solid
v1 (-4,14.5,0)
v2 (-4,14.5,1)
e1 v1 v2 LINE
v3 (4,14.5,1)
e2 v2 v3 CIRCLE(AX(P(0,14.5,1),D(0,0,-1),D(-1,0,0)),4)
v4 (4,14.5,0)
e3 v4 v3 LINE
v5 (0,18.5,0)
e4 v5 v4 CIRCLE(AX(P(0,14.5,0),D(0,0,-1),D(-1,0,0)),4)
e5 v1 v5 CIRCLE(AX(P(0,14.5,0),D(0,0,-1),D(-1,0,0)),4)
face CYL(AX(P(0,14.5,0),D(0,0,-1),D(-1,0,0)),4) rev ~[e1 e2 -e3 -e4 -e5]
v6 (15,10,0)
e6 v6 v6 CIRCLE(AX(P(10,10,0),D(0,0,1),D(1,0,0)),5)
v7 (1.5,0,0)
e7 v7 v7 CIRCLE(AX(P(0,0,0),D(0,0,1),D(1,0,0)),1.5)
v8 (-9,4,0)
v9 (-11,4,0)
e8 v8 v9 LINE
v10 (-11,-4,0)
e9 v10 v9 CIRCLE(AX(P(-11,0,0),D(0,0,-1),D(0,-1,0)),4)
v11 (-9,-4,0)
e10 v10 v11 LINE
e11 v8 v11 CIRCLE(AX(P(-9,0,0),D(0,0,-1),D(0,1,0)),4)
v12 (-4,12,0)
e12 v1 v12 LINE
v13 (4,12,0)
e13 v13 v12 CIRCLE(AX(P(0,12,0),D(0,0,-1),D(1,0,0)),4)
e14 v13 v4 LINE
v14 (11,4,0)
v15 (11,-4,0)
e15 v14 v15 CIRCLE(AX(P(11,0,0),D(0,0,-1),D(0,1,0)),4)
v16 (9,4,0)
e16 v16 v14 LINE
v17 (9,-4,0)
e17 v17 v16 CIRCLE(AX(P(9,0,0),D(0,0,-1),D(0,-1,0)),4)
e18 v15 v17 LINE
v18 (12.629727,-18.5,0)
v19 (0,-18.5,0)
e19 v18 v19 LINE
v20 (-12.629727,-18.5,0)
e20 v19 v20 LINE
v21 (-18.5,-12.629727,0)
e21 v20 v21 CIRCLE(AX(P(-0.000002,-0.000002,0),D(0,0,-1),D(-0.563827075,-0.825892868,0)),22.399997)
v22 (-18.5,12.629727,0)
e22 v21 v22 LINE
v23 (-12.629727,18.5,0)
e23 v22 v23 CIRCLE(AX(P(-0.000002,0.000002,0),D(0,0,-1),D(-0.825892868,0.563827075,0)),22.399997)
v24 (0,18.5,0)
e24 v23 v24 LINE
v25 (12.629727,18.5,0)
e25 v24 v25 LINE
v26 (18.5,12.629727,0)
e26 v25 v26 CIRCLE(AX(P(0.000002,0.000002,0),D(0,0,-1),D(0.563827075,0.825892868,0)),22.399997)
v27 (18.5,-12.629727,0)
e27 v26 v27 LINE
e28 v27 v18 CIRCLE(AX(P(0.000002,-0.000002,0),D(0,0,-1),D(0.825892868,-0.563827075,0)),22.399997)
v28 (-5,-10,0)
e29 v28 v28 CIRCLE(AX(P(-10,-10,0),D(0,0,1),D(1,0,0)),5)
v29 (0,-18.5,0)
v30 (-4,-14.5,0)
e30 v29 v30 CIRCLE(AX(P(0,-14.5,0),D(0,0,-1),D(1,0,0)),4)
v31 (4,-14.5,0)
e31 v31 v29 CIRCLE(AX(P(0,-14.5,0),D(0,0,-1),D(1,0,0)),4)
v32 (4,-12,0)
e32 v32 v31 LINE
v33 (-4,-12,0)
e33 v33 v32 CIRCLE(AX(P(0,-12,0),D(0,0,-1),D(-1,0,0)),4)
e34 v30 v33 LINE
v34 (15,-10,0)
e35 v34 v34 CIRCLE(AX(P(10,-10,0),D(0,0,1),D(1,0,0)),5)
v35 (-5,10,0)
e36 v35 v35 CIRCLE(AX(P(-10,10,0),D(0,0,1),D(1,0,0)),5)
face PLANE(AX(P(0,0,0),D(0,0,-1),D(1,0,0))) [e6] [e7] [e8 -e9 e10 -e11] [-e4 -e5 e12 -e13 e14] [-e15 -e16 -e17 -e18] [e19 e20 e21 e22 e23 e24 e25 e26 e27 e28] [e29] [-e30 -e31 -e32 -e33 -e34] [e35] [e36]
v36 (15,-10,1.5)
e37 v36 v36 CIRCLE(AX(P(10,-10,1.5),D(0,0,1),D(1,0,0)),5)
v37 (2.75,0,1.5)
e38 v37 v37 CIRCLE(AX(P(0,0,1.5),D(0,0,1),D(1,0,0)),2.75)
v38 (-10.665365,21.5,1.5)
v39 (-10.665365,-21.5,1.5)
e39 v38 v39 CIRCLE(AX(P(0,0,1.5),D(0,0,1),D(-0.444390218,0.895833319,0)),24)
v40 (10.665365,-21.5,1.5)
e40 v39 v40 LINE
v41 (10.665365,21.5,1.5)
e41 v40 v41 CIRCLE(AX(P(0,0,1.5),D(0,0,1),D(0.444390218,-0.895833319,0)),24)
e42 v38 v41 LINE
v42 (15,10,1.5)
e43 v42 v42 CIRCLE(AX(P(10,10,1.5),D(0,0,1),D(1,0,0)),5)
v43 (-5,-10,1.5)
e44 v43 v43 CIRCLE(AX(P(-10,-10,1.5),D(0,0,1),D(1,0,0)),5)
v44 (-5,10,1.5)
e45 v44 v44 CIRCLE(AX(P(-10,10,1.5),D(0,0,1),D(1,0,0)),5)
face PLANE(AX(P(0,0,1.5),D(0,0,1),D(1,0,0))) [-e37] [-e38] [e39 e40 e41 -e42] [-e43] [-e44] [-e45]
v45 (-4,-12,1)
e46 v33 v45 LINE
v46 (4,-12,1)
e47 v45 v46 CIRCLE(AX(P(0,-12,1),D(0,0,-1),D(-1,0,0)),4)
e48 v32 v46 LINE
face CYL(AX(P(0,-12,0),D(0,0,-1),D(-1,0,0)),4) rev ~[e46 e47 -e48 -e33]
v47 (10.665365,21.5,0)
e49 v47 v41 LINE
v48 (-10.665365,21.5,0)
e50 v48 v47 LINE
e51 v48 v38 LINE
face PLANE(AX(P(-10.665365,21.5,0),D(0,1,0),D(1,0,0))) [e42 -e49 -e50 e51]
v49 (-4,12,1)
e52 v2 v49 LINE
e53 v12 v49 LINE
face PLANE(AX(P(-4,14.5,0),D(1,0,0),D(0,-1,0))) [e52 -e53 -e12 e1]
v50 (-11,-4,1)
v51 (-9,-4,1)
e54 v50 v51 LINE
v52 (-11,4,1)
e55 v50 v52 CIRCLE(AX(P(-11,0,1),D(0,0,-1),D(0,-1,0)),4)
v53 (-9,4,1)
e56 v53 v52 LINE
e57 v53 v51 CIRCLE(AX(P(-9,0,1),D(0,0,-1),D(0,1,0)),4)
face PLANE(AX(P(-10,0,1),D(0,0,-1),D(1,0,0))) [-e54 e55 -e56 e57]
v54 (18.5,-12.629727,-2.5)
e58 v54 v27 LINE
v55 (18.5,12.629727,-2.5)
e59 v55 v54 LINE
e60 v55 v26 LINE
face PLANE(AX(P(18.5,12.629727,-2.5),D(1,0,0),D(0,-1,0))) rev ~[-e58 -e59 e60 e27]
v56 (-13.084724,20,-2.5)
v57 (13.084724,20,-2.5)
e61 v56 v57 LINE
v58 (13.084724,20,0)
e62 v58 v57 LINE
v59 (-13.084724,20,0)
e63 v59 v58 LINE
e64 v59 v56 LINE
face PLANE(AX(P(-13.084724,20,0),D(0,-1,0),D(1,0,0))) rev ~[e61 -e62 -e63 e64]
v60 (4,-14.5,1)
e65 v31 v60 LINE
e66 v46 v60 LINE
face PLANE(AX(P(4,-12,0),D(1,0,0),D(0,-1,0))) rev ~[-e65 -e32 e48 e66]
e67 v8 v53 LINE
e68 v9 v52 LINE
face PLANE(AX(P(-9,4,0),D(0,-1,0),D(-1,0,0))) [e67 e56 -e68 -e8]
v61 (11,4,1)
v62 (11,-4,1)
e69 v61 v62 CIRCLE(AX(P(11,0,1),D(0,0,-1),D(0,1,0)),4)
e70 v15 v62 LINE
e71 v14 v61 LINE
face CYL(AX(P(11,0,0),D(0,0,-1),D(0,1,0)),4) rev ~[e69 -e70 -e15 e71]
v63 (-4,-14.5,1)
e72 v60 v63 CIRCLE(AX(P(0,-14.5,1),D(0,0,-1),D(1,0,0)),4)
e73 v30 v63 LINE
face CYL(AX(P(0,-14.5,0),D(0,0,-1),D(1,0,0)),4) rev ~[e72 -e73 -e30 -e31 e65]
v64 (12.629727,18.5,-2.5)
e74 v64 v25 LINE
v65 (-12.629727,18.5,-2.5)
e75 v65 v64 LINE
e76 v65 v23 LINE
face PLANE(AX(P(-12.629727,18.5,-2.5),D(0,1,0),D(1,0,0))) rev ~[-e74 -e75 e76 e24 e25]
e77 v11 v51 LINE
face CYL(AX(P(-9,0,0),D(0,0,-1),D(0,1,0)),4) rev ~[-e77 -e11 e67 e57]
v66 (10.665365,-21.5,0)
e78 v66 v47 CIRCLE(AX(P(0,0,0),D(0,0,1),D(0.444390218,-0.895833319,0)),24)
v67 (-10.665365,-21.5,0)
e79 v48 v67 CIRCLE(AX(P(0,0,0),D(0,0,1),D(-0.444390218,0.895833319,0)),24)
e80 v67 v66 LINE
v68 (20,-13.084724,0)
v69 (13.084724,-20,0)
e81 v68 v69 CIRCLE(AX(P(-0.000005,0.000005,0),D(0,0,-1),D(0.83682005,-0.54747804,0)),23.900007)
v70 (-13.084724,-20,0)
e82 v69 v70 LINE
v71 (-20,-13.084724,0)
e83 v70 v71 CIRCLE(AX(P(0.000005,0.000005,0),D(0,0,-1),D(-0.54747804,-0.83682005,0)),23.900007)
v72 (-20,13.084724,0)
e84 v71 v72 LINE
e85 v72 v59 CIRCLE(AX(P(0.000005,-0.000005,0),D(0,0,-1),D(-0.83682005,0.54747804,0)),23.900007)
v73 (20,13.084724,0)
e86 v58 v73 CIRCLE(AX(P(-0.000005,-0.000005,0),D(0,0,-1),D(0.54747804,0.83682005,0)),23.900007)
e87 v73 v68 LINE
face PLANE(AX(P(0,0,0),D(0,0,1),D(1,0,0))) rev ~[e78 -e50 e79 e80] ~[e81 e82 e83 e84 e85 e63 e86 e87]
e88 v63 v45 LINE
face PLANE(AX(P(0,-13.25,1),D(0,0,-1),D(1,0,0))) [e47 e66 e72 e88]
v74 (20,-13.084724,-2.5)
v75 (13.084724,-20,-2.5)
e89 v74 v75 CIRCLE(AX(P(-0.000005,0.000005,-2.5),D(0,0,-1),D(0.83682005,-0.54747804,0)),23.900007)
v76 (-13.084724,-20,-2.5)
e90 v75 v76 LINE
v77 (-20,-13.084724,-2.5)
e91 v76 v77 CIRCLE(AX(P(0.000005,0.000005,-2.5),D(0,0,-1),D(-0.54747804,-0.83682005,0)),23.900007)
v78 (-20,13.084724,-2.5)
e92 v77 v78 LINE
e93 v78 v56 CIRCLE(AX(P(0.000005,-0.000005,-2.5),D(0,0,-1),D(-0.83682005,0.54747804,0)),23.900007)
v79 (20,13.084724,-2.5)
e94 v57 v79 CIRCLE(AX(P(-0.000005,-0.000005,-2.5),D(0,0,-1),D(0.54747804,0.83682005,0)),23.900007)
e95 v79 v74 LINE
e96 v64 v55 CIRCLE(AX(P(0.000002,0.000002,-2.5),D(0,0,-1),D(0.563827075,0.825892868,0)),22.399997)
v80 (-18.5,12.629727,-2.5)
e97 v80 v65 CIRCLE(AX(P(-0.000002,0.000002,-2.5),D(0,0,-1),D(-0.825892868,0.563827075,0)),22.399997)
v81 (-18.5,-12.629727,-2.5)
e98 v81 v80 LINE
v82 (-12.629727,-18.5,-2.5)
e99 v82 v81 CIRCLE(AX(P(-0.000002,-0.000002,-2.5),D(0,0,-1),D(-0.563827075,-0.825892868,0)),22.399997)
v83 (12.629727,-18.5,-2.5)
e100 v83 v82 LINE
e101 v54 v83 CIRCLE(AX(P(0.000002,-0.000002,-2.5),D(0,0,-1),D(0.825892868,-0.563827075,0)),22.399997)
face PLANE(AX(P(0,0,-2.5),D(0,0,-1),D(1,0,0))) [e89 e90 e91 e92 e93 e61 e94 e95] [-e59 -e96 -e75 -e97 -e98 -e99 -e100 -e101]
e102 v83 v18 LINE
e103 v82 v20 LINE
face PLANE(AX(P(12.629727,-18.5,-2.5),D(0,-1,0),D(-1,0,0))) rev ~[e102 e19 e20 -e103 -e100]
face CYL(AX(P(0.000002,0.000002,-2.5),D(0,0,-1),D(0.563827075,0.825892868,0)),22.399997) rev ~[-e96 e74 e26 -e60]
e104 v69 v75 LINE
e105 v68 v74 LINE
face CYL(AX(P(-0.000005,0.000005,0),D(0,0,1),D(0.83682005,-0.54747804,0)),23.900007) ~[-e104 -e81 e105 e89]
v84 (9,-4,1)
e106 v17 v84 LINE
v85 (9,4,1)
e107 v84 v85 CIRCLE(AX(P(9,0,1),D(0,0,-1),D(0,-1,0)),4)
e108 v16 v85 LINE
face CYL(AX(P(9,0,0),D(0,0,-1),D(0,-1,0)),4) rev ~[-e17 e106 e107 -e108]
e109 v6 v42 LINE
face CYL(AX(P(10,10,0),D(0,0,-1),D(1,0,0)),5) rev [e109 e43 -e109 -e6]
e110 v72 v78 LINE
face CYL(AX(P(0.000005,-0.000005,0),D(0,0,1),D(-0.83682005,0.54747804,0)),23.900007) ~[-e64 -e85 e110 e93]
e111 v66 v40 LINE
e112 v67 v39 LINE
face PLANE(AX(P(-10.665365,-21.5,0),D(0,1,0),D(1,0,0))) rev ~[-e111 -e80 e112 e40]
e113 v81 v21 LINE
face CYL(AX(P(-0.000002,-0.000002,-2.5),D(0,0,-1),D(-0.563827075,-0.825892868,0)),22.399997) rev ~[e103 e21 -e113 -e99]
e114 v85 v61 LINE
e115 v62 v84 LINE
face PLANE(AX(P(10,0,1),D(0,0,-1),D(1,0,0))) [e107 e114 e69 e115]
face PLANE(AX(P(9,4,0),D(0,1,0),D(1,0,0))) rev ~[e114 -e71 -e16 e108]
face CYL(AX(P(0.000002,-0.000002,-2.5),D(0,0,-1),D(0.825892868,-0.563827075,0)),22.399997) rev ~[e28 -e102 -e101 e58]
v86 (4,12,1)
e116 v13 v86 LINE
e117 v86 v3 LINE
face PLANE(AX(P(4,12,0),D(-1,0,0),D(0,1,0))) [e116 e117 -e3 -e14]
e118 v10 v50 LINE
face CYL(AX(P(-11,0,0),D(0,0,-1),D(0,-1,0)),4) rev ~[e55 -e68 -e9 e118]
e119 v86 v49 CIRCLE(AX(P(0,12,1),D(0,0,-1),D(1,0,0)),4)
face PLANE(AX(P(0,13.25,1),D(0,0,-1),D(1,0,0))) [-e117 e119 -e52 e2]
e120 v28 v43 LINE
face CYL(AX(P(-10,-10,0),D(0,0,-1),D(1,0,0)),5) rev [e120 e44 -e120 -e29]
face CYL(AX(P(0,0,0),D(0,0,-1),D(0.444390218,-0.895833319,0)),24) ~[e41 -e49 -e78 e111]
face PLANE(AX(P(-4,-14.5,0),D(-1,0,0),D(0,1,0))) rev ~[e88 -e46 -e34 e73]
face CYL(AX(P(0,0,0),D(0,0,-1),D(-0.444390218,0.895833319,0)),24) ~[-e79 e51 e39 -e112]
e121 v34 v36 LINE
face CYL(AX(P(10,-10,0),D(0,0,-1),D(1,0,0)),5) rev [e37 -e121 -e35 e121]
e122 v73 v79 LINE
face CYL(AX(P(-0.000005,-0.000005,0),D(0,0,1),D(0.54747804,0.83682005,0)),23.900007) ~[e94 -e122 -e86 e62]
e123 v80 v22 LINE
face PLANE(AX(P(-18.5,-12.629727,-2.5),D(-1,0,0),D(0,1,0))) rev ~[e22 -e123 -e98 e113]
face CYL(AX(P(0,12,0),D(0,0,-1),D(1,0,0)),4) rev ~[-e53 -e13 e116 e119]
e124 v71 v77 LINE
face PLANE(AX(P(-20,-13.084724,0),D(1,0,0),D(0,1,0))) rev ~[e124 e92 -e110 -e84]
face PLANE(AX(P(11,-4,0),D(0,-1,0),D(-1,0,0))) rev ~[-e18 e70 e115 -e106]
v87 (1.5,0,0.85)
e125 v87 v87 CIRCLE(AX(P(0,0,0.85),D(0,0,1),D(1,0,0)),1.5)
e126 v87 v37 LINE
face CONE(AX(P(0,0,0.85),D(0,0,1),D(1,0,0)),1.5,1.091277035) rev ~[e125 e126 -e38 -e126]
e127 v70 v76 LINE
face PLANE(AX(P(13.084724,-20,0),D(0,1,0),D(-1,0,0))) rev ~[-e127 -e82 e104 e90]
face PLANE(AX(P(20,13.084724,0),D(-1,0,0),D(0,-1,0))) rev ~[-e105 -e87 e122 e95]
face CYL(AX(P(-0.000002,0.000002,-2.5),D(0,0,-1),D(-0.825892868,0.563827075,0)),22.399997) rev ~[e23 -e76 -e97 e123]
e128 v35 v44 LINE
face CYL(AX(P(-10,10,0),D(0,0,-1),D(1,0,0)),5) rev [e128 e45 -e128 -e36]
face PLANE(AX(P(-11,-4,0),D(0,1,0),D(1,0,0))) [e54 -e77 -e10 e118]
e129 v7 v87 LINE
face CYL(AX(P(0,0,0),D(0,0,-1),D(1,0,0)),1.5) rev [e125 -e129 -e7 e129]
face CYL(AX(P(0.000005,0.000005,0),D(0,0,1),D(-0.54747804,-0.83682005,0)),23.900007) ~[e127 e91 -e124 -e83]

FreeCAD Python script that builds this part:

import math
import FreeCAD as App
import Part
import Sketcher


def edges_at(feature, points):
    """Names of the edges that pass closest to the given points."""
    edges = feature.Shape.Edges
    near = lambda p: min(range(len(edges)), key=lambda i: edges[i].distToShape(Part.Vertex(*p))[0])
    return sorted({f"Edge{near(p) + 1}" for p in points})

doc = App.newDocument("Part")
body = doc.addObject("PartDesign::Body", "Body")

# Sketch on XY plane
sketch1 = doc.addObject("Sketcher::SketchObject", "Sketch")
body.addObject(sketch1)
sketch1.AttachmentSupport = (doc.XY_Plane, [""])
sketch1.MapMode = "FlatFace"
sketch1.addGeometry([
    Part.ArcOfCircle(Part.Circle(App.Vector(0, 0, 0), App.Vector(0, 0, 1), 24), math.radians(-64), math.radians(64)),  # 0
    Part.LineSegment(App.Vector(10.7, 21.5, 0), App.Vector(-10.7, 21.5, 0)),  # 1
    Part.ArcOfCircle(Part.Circle(App.Vector(0, 0, 0), App.Vector(0, 0, 1), 24), math.radians(116), math.radians(244)),  # 2
    Part.LineSegment(App.Vector(-10.7, -21.5, 0), App.Vector(10.7, -21.5, 0)),  # 3
    Part.Circle(App.Vector(-10, -10, 0), App.Vector(0, 0, 1), 5),  # 4
    Part.Circle(App.Vector(10, -10, 0), App.Vector(0, 0, 1), 5),  # 5
    Part.Circle(App.Vector(-10, 10, 0), App.Vector(0, 0, 1), 5),  # 6
    Part.Circle(App.Vector(0, 0, 0), App.Vector(0, 0, 1), 1.5),  # 7
    Part.Circle(App.Vector(10, 10, 0), App.Vector(0, 0, 1), 5),  # 8
], False)
sketch1.addConstraint([
    Sketcher.Constraint("Coincident", 0, 2, 1, 1),
    Sketcher.Constraint("Coincident", 1, 2, 2, 1),
    Sketcher.Constraint("Coincident", 2, 2, 3, 1),
    Sketcher.Constraint("Coincident", 3, 2, 0, 1),
    Sketcher.Constraint("Horizontal", 1),
    Sketcher.Constraint("Horizontal", 3),
    Sketcher.Constraint("Coincident", 0, 3, -1, 1),
    Sketcher.Constraint("Coincident", 2, 3, -1, 1),
    Sketcher.Constraint("Coincident", 7, 3, -1, 1),
    Sketcher.Constraint("Equal", 0, 2),
    Sketcher.Constraint("Equal", 4, 5),
    Sketcher.Constraint("Equal", 5, 6),
    Sketcher.Constraint("Equal", 6, 8),
    Sketcher.Constraint("Symmetric", 5, 3, 6, 3, -1, 1),
    Sketcher.Constraint("Symmetric", 4, 3, 8, 3, -1, 1),
    Sketcher.Constraint("Symmetric", 4, 3, 5, 3, -2),
    Sketcher.Constraint("Vertical", 1, 2, 2, 2),
    Sketcher.Constraint("Diameter", 4, 10.0),
    Sketcher.Constraint("Diameter", 7, 3.0),
    Sketcher.Constraint("Radius", 0, 24.0),
    Sketcher.Constraint("DistanceX", 4, 3, -1, 1, 10.0),
    Sketcher.Constraint("DistanceY", 4, 3, -1, 1, 10.0),
    Sketcher.Constraint("DistanceY", -1, 1, 0, 2, 21.5),
])
pad1 = doc.addObject("PartDesign::Pad", "Pad")
body.addObject(pad1)
pad1.Profile = sketch1
pad1.Length = 1.5
doc.recompute()

chamfer = doc.addObject("PartDesign::Chamfer", "Chamfer")
body.addObject(chamfer)
chamfer.Base = (pad1, edges_at(pad1, [(-1.5, 0, 1.5)]))
chamfer.ChamferType = "Two distances"
chamfer.Size = 0.65
chamfer.Size2 = 1.25

# Sketch on XY plane
sketch2 = doc.addObject("Sketcher::SketchObject", "Sketch001")
body.addObject(sketch2)
sketch2.AttachmentSupport = (doc.XY_Plane, [""])
sketch2.MapMode = "FlatFace"
sketch2.addGeometry([
    Part.ArcOfCircle(Part.Circle(App.Vector(0, -14.5, 0), App.Vector(0, 0, 1), 4), math.radians(180), math.radians(360)),  # 0
    Part.LineSegment(App.Vector(-4, -14.5, 0), App.Vector(-4, -12, 0)),  # 1
    Part.ArcOfCircle(Part.Circle(App.Vector(0, -12, 0), App.Vector(0, 0, 1), 4), math.radians(0), math.radians(180)),  # 2
    Part.LineSegment(App.Vector(4, -12, 0), App.Vector(4, -14.5, 0)),  # 3
    Part.ArcOfCircle(Part.Circle(App.Vector(0, 14.5, 0), App.Vector(0, 0, 1), 4), math.radians(0), math.radians(180)),  # 4
    Part.LineSegment(App.Vector(4, 14.5, 0), App.Vector(4, 12, 0)),  # 5
    Part.ArcOfCircle(Part.Circle(App.Vector(0, 12, 0), App.Vector(0, 0, 1), 4), math.radians(180), math.radians(360)),  # 6
    Part.LineSegment(App.Vector(-4, 12, 0), App.Vector(-4, 14.5, 0)),  # 7
    Part.ArcOfCircle(Part.Circle(App.Vector(9, 0, 0), App.Vector(0, 0, 1), 4), math.radians(90), math.radians(270)),  # 8
    Part.LineSegment(App.Vector(9, 4, 0), App.Vector(11, 4, 0)),  # 9
    Part.ArcOfCircle(Part.Circle(App.Vector(11, 0, 0), App.Vector(0, 0, 1), 4), math.radians(-90), math.radians(90)),  # 10
    Part.LineSegment(App.Vector(11, -4, 0), App.Vector(9, -4, 0)),  # 11
    Part.ArcOfCircle(Part.Circle(App.Vector(-9, 0, 0), App.Vector(0, 0, 1), 4), math.radians(-90), math.radians(90)),  # 12
    Part.LineSegment(App.Vector(-9, -4, 0), App.Vector(-11, -4, 0)),  # 13
    Part.ArcOfCircle(Part.Circle(App.Vector(-11, 0, 0), App.Vector(0, 0, 1), 4), math.radians(90), math.radians(270)),  # 14
    Part.LineSegment(App.Vector(-11, 4, 0), App.Vector(-9, 4, 0)),  # 15
], False)
sketch2.addConstraint([
    Sketcher.Constraint("Tangent", 0, 1, 1, 1),
    Sketcher.Constraint("Tangent", 1, 2, 2, 2),
    Sketcher.Constraint("Tangent", 2, 1, 3, 1),
    Sketcher.Constraint("Tangent", 3, 2, 0, 2),
    Sketcher.Constraint("Tangent", 4, 1, 5, 1),
    Sketcher.Constraint("Tangent", 5, 2, 6, 2),
    Sketcher.Constraint("Tangent", 6, 1, 7, 1),
    Sketcher.Constraint("Tangent", 7, 2, 4, 2),
    Sketcher.Constraint("Tangent", 8, 1, 9, 1),
    Sketcher.Constraint("Tangent", 9, 2, 10, 2),
    Sketcher.Constraint("Tangent", 10, 1, 11, 1),
    Sketcher.Constraint("Tangent", 11, 2, 8, 2),
    Sketcher.Constraint("Tangent", 12, 1, 13, 1),
    Sketcher.Constraint("Tangent", 13, 2, 14, 2),
    Sketcher.Constraint("Tangent", 14, 1, 15, 1),
    Sketcher.Constraint("Tangent", 15, 2, 12, 2),
    Sketcher.Constraint("Vertical", 1),
    Sketcher.Constraint("Vertical", 3),
    Sketcher.Constraint("Vertical", 5),
    Sketcher.Constraint("Vertical", 7),
    Sketcher.Constraint("Horizontal", 9),
    Sketcher.Constraint("Horizontal", 11),
    Sketcher.Constraint("Horizontal", 13),
    Sketcher.Constraint("Horizontal", 15),
    Sketcher.Constraint("Equal", 2, 4),
    Sketcher.Constraint("Equal", 6, 8),
    Sketcher.Constraint("Equal", 10, 12),
    Sketcher.Constraint("Symmetric", 0, 3, 4, 3, -1, 1),
    Sketcher.Constraint("Symmetric", 8, 3, 12, 3, -1, 1),
    Sketcher.Constraint("Symmetric", 10, 3, 14, 3, -2),
    Sketcher.Constraint("Symmetric", 2, 3, 6, 3, -1),
    Sketcher.Constraint("Radius", 0, 4.0),
    Sketcher.Constraint("DistanceX", 9, 1, 9, 2, 2.0),
    Sketcher.Constraint("DistanceY", 1, 1, 1, 2, 2.5),
    Sketcher.Constraint("DistanceY", 2, 3, -1, 1, 12.0),
    Sketcher.Constraint("DistanceX", -1, 1, 8, 3, 9.0),
])
pocket1 = doc.addObject("PartDesign::Pocket", "Pocket")
body.addObject(pocket1)
pocket1.Profile = sketch2
pocket1.Length = 1
pocket1.Reversed = True

# Sketch on XY plane
sketch3 = doc.addObject("Sketcher::SketchObject", "Sketch002")
body.addObject(sketch3)
sketch3.AttachmentSupport = (doc.XY_Plane, [""])
sketch3.MapMode = "FlatFace"
sketch3.addGeometry([
    Part.LineSegment(App.Vector(-20, -13, 0), App.Vector(-20, 13, 0)),  # 0
    Part.ArcOfCircle(Part.Circle(App.Vector(0, 0, 0), App.Vector(0, 0, 1), 24), math.radians(123), math.radians(147)),  # 1
    Part.LineSegment(App.Vector(-13, 20, 0), App.Vector(13, 20, 0)),  # 2
    Part.ArcOfCircle(Part.Circle(App.Vector(0, 0, 0), App.Vector(0, 0, 1), 24), math.radians(33), math.radians(57)),  # 3
    Part.LineSegment(App.Vector(20, 13, 0), App.Vector(20, -13, 0)),  # 4
    Part.ArcOfCircle(Part.Circle(App.Vector(0, 0, 0), App.Vector(0, 0, 1), 24), math.radians(-57), math.radians(-33)),  # 5
    Part.LineSegment(App.Vector(13, -20, 0), App.Vector(-13, -20, 0)),  # 6
    Part.ArcOfCircle(Part.Circle(App.Vector(0, 0, 0), App.Vector(0, 0, 1), 24), math.radians(-147), math.radians(-123)),  # 7
], False)
sketch3.addConstraint([
    Sketcher.Constraint("Coincident", 0, 2, 1, 2),
    Sketcher.Constraint("Coincident", 1, 1, 2, 1),
    Sketcher.Constraint("Coincident", 2, 2, 3, 2),
    Sketcher.Constraint("Coincident", 3, 1, 4, 1),
    Sketcher.Constraint("Coincident", 4, 2, 5, 2),
    Sketcher.Constraint("Coincident", 5, 1, 6, 1),
    Sketcher.Constraint("Coincident", 6, 2, 7, 2),
    Sketcher.Constraint("Coincident", 7, 1, 0, 1),
    Sketcher.Constraint("Vertical", 0),
    Sketcher.Constraint("Horizontal", 2),
    Sketcher.Constraint("Vertical", 4),
    Sketcher.Constraint("Horizontal", 6),
    Sketcher.Constraint("Coincident", 1, 3, -1, 1),
    Sketcher.Constraint("Coincident", 3, 3, -1, 1),
    Sketcher.Constraint("Coincident", 5, 3, -1, 1),
    Sketcher.Constraint("Coincident", 7, 3, -1, 1),
    Sketcher.Constraint("Equal", 1, 3),
    Sketcher.Constraint("Equal", 3, 5),
    Sketcher.Constraint("Equal", 5, 7),
    Sketcher.Constraint("Horizontal", 0, 2, 3, 1),
    Sketcher.Constraint("Vertical", 2, 2, 5, 1),
    Sketcher.Constraint("Equal", 6, 0),
    Sketcher.Constraint("DistanceX", 0, 2, -1, 1, 20.0),
    Sketcher.Constraint("Radius", 1, 23.900007),
])
pad2 = doc.addObject("PartDesign::Pad", "Pad001")
body.addObject(pad2)
pad2.Profile = sketch3
pad2.Length = 2.5
pad2.Reversed = True

# Sketch on XY plane
sketch4 = doc.addObject("Sketcher::SketchObject", "Sketch003")
body.addObject(sketch4)
sketch4.AttachmentSupport = (doc.XY_Plane, [""])
sketch4.MapMode = "FlatFace"
sketch4.AttachmentOffset = App.Placement(App.Vector(0, 0, -2.5), App.Rotation())
sketch4.addGeometry([
    Part.LineSegment(App.Vector(-18, -13, 0), App.Vector(-18, 13, 0)),  # 0
    Part.ArcOfCircle(Part.Circle(App.Vector(0, 0, 0), App.Vector(0, 0, 1), 22), math.radians(124), math.radians(146)),  # 1
    Part.LineSegment(App.Vector(-13, 18, 0), App.Vector(13, 18, 0)),  # 2
    Part.ArcOfCircle(Part.Circle(App.Vector(0, 0, 0), App.Vector(0, 0, 1), 22), math.radians(34), math.radians(56)),  # 3
    Part.LineSegment(App.Vector(18, 13, 0), App.Vector(18, -13, 0)),  # 4
    Part.ArcOfCircle(Part.Circle(App.Vector(0, 0, 0), App.Vector(0, 0, 1), 22), math.radians(-56), math.radians(-34)),  # 5
    Part.LineSegment(App.Vector(13, -18, 0), App.Vector(-13, -18, 0)),  # 6
    Part.ArcOfCircle(Part.Circle(App.Vector(0, 0, 0), App.Vector(0, 0, 1), 22), math.radians(-146), math.radians(-124)),  # 7
], False)
sketch4.addConstraint([
    Sketcher.Constraint("Coincident", 0, 2, 1, 2),
    Sketcher.Constraint("Coincident", 1, 1, 2, 1),
    Sketcher.Constraint("Coincident", 2, 2, 3, 2),
    Sketcher.Constraint("Coincident", 3, 1, 4, 1),
    Sketcher.Constraint("Coincident", 4, 2, 5, 2),
    Sketcher.Constraint("Coincident", 5, 1, 6, 1),
    Sketcher.Constraint("Coincident", 6, 2, 7, 2),
    Sketcher.Constraint("Coincident", 7, 1, 0, 1),
    Sketcher.Constraint("Vertical", 0),
    Sketcher.Constraint("Horizontal", 2),
    Sketcher.Constraint("Vertical", 4),
    Sketcher.Constraint("Horizontal", 6),
    Sketcher.Constraint("Coincident", 1, 3, -1, 1),
    Sketcher.Constraint("Coincident", 3, 3, -1, 1),
    Sketcher.Constraint("Coincident", 5, 3, -1, 1),
    Sketcher.Constraint("Coincident", 7, 3, -1, 1),
    Sketcher.Constraint("Equal", 1, 3),
    Sketcher.Constraint("Equal", 3, 5),
    Sketcher.Constraint("Equal", 5, 7),
    Sketcher.Constraint("Horizontal", 0, 2, 3, 1),
    Sketcher.Constraint("Vertical", 2, 2, 5, 1),
    Sketcher.Constraint("Equal", 6, 0),
    Sketcher.Constraint("DistanceX", 0, 2, -1, 1, 18.5),
    Sketcher.Constraint("Radius", 1, 22.399997),
])
pocket2 = doc.addObject("PartDesign::Pocket", "Pocket001")
body.addObject(pocket2)
pocket2.Profile = sketch4
pocket2.Length = 2.5
pocket2.Reversed = True

doc.recompute()
